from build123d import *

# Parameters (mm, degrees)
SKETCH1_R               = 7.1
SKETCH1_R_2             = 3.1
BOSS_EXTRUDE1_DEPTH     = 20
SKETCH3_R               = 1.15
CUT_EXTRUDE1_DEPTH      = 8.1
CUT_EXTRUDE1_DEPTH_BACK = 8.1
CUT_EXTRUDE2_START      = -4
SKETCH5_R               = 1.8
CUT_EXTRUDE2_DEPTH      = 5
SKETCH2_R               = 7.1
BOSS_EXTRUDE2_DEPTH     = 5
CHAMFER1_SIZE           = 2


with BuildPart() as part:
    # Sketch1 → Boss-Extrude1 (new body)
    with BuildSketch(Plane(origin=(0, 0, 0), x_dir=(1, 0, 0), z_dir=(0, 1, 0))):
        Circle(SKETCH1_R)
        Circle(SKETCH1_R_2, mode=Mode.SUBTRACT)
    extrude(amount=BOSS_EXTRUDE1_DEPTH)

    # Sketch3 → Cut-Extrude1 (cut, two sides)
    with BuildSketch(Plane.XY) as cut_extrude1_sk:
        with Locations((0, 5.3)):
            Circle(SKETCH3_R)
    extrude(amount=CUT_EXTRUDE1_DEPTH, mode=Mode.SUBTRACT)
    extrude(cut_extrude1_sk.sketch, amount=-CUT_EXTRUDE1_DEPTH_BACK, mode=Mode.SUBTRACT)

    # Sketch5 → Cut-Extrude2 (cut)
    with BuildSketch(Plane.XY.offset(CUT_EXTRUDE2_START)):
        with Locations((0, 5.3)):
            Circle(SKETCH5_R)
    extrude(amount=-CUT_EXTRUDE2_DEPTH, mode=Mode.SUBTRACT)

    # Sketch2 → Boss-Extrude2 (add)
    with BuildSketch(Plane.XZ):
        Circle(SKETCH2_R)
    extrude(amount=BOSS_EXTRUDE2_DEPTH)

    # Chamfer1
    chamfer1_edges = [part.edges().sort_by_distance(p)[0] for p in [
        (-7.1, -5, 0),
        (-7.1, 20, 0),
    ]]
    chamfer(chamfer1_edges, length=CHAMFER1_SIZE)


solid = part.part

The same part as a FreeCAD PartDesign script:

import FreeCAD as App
import Part
import Sketcher

V = App.Vector
Q = App.Units.Quantity


def edges_at(feature, points):
    """Names of the edges that pass closest to the given points."""
    edges = feature.Shape.Edges
    near = lambda p: min(range(len(edges)), key=lambda i: edges[i].distToShape(Part.Vertex(*p))[0])
    return sorted({f"Edge{near(p) + 1}" for p in points})

doc = App.newDocument("Part")
body = doc.addObject("PartDesign::Body", "Body")

# Sketch on XZ plane
sketch1 = body.newObject("Sketcher::SketchObject", "Sketch")
sketch1.AttachmentSupport = (doc.getObject("XZ_Plane"), [""])
sketch1.MapMode = "FlatFace"
sketch1.addGeometry(Part.Circle(V(0, 0, 0), V(0, 0, 1), 7.1), False)
sketch1.addGeometry(Part.Circle(V(0, 0, 0), V(0, 0, 1), 3.1), False)
sketch1.addConstraint(Sketcher.Constraint("Coincident", 0, 3, -1, 1))
sketch1.addConstraint(Sketcher.Constraint("Coincident", 1, 3, -1, 1))
sketch1.addConstraint(Sketcher.Constraint("Diameter", 0, Q("14.2 mm")))
sketch1.addConstraint(Sketcher.Constraint("Diameter", 1, Q("6.2 mm")))
pad1 = body.newObject("PartDesign::Pad", "Pad")
pad1.Profile = sketch1
pad1.Length = 20
pad1.Reversed = True

# Sketch on XY plane
sketch2 = body.newObject("Sketcher::SketchObject", "Sketch001")
sketch2.AttachmentSupport = (doc.getObject("XY_Plane"), [""])
sketch2.MapMode = "FlatFace"
sketch2.addGeometry(Part.Circle(V(0, 5.3, 0), V(0, 0, 1), 1.1), False)
sketch2.addConstraint(Sketcher.Constraint("PointOnObject", 0, 3, -2))
sketch2.addConstraint(Sketcher.Constraint("Diameter", 0, Q("2.3 mm")))
sketch2.addConstraint(Sketcher.Constraint("DistanceY", -1, 1, 0, 3, Q("5.3 mm")))
pocket1 = body.newObject("PartDesign::Pocket", "Pocket")
pocket1.Profile = sketch2
pocket1.Type = "ThroughAll"
pocket1.Midplane = True

# Sketch on XY plane
sketch3 = body.newObject("Sketcher::SketchObject", "Sketch002")
sketch3.AttachmentSupport = (doc.getObject("XY_Plane"), [""])
sketch3.MapMode = "FlatFace"
sketch3.AttachmentOffset = App.Placement(V(0, 0, -4), App.Rotation())
sketch3.addGeometry(Part.Circle(V(0, 5.3, 0), V(0, 0, 1), 1.8), False)
sketch3.addConstraint(Sketcher.Constraint("PointOnObject", 0, 3, -2))
sketch3.addConstraint(Sketcher.Constraint("Diameter", 0, Q("3.6 mm")))
sketch3.addConstraint(Sketcher.Constraint("DistanceY", -1, 1, 0, 3, Q("5.3 mm")))
pocket2 = body.newObject("PartDesign::Pocket", "Pocket001")
pocket2.Profile = sketch3
pocket2.Length = 5

# Sketch on XZ plane
sketch4 = body.newObject("Sketcher::SketchObject", "Sketch003")
sketch4.AttachmentSupport = (doc.getObject("XZ_Plane"), [""])
sketch4.MapMode = "FlatFace"
sketch4.addGeometry(Part.Circle(V(0, 0, 0), V(0, 0, 1), 7), False)
sketch4.addConstraint(Sketcher.Constraint("Coincident", 0, 3, -1, 1))
sketch4.addConstraint(Sketcher.Constraint("Diameter", 0, Q("14.2 mm")))
pad2 = body.newObject("PartDesign::Pad", "Pad001")
pad2.Profile = sketch4
pad2.Length = 5
doc.recompute()

chamfer = body.newObject("PartDesign::Chamfer", "Chamfer")
chamfer.Base = (pad2, edges_at(pad2, [(-7.1, -5, 0), (-7.1, 20, 0)]))
chamfer.Size = 2

doc.recompute()
